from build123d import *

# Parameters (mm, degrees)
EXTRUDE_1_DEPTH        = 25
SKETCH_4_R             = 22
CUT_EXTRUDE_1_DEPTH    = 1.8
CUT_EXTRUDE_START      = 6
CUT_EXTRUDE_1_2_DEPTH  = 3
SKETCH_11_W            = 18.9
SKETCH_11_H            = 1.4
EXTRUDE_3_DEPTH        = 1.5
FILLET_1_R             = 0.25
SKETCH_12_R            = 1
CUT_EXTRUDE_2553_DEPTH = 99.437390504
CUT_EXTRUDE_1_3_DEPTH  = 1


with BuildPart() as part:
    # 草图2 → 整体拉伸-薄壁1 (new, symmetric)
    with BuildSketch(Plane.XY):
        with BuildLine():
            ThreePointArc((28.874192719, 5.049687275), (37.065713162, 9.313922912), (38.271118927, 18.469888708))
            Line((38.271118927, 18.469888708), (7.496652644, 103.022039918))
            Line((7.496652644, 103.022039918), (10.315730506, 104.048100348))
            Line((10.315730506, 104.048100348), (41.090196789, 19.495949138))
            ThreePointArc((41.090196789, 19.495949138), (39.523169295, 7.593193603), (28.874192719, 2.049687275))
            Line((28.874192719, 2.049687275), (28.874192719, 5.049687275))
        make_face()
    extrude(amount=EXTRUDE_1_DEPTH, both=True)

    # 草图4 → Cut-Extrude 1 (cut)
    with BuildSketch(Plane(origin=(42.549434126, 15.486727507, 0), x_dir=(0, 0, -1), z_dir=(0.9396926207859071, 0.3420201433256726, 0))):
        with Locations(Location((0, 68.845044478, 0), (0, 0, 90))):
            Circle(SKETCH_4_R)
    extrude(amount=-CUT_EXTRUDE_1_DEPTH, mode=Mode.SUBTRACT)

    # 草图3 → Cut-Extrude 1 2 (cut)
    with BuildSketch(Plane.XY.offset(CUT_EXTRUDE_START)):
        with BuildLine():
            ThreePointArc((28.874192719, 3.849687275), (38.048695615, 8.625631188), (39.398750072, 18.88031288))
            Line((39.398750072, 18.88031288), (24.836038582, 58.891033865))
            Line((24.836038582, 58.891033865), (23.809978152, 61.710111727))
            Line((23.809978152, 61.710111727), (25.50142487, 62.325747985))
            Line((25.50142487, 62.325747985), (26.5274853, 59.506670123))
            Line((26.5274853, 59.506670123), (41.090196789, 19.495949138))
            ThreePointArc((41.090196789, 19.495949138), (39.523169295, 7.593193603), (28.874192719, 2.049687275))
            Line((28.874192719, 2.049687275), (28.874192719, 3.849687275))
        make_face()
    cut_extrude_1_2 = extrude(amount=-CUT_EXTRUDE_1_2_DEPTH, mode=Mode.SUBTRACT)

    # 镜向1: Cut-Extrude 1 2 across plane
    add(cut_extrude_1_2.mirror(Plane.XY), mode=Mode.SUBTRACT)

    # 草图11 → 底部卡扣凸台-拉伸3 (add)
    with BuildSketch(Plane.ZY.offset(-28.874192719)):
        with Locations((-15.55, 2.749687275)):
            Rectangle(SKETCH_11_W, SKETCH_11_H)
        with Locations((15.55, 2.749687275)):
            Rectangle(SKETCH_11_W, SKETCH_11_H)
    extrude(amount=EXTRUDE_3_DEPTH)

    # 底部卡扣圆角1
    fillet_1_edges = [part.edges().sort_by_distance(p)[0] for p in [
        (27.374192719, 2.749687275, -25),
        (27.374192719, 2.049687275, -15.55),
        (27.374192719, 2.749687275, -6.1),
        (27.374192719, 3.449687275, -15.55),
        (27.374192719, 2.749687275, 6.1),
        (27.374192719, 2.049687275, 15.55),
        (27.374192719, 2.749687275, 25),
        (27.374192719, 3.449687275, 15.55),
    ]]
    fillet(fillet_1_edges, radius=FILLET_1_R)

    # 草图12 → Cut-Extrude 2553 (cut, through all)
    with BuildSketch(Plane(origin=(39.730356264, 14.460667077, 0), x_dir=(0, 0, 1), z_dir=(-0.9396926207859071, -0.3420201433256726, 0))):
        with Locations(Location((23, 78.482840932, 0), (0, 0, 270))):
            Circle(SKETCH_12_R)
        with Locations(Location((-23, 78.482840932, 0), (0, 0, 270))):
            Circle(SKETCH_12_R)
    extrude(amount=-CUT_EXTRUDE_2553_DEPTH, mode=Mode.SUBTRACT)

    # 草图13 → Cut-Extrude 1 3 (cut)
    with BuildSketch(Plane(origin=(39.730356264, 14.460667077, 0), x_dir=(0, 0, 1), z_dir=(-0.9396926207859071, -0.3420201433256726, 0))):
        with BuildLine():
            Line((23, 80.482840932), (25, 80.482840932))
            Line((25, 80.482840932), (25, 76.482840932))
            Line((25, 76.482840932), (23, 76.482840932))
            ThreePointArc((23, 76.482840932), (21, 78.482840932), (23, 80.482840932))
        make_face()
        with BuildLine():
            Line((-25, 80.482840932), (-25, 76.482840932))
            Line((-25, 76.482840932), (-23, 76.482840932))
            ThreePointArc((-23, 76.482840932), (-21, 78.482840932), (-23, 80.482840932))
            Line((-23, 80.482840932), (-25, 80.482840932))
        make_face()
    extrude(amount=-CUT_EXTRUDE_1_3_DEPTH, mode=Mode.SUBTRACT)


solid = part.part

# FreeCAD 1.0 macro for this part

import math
import FreeCAD as App
import Part
import Sketcher
Q = App.Units.Quantity


def edges_at(feature, points):
    """Names of the edges that pass closest to the given points."""
    edges = feature.Shape.Edges
    near = lambda p: min(range(len(edges)), key=lambda i: edges[i].distToShape(Part.Vertex(*p))[0])
    return sorted({f"Edge{near(p) + 1}" for p in points})


def add_polygon(sketch, points):
    """Adds a closed chain of lines whose ends are joined by coincident constraints."""
    first, n = sketch.GeometryCount, len(points)
    for a, b in zip(points, points[1:] + points[:1]):
        sketch.addGeometry(Part.LineSegment(App.Vector(*a, 0), App.Vector(*b, 0)), False)
    for i in range(n):
        sketch.addConstraint(Sketcher.Constraint("Coincident", first + i, 2, first + (i + 1) % n, 1))

doc = App.newDocument("Part")
body = doc.addObject("PartDesign::Body", "Body")

sketch1 = doc.addObject("Sketcher::SketchObject", "Sketch")
body.addObject(sketch1)
sketch1.AttachmentSupport = (doc.XY_Plane, [""])
sketch1.MapMode = "FlatFace"
sketch1.addGeometry(Part.ArcOfCircle(Part.Circle(App.Vector(28.9, 15, 0), App.Vector(0, 0, 1), 10), math.radians(-90), math.radians(20)), False)
sketch1.addGeometry(Part.LineSegment(App.Vector(28.9, 5, 0), App.Vector(28.9, 2, 0)), False)
sketch1.addGeometry(Part.ArcOfCircle(Part.Circle(App.Vector(28.9, 15, 0), App.Vector(0, 0, 1), 13), math.radians(-90), math.radians(20)), False)
sketch1.addGeometry(Part.LineSegment(App.Vector(41.1, 19.5, 0), App.Vector(10.3, 104, 0)), False)
sketch1.addGeometry(Part.LineSegment(App.Vector(10.3, 104, 0), App.Vector(7.5, 103, 0)), False)
sketch1.addGeometry(Part.LineSegment(App.Vector(7.5, 103, 0), App.Vector(38.3, 18.5, 0)), False)
sketch1.addConstraint(Sketcher.Constraint("Coincident", 0, 1, 1, 1))
sketch1.addConstraint(Sketcher.Constraint("Coincident", 1, 2, 2, 1))
sketch1.addConstraint(Sketcher.Constraint("Tangent", 2, 2, 3, 1))
sketch1.addConstraint(Sketcher.Constraint("Coincident", 3, 2, 4, 1))
sketch1.addConstraint(Sketcher.Constraint("Coincident", 4, 2, 5, 1))
sketch1.addConstraint(Sketcher.Constraint("Tangent", 5, 2, 0, 2))
sketch1.addConstraint(Sketcher.Constraint("Vertical", 1))
sketch1.addConstraint(Sketcher.Constraint("Coincident", 2, 3, 0, 3))
sketch1.addConstraint(Sketcher.Constraint("Perpendicular", 3, 4))
sketch1.addConstraint(Sketcher.Constraint("Perpendicular", 4, 5))
sketch1.addConstraint(Sketcher.Constraint("Vertical", 2, 3, 0, 1))
sketch1.addConstraint(Sketcher.Constraint("Radius", 0, 10.0))
sketch1.addConstraint(Sketcher.Constraint("Radius", 2, 13.0))
sketch1.addConstraint(Sketcher.Constraint("Angle", 3, Q("110 deg")))
sketch1.addConstraint(Sketcher.Constraint("DistanceY", -1, 1, 3, 2, 104.0481))
sketch1.addConstraint(Sketcher.Constraint("Distance", 3, 89.97852))
sketch1.addConstraint(Sketcher.Constraint("DistanceX", -1, 1, 3, 2, 10.315731))
pad1 = doc.addObject("PartDesign::Pad", "Pad")
body.addObject(pad1)
pad1.Profile = sketch1
pad1.Length = 50
pad1.Midplane = True

sketch2 = doc.addObject("Sketcher::SketchObject", "Sketch001")
body.addObject(sketch2)
sketch2.Placement = App.Placement(App.Vector(42.549434, 15.486728, 0), App.Rotation(App.Vector(0, 0, -1), App.Vector(-0.342020143, 0.939692621, 0), App.Vector(0.939692621, 0.342020143, 0), "ZXY"))
sketch2.addGeometry(Part.Circle(App.Vector(0, 69, 0), App.Vector(0, 0, 1), 22), False)
sketch2.addConstraint(Sketcher.Constraint("PointOnObject", 0, 3, -2))
sketch2.addConstraint(Sketcher.Constraint("Diameter", 0, 44.0))
sketch2.addConstraint(Sketcher.Constraint("DistanceY", -1, 1, 0, 3, 68.845044))
pocket1 = doc.addObject("PartDesign::Pocket", "Pocket")
body.addObject(pocket1)
pocket1.Profile = sketch2
pocket1.Length = 1.8

sketch3 = doc.addObject("Sketcher::SketchObject", "Sketch002")
body.addObject(sketch3)
sketch3.AttachmentSupport = (doc.XY_Plane, [""])
sketch3.MapMode = "FlatFace"
sketch3.AttachmentOffset = App.Placement(App.Vector(0, 0, 6), App.Rotation())
sketch3.addGeometry(Part.ArcOfCircle(Part.Circle(App.Vector(28.9, 15, 0), App.Vector(0, 0, 1), 11.2), math.radians(-90), math.radians(20)), False)
sketch3.addGeometry(Part.LineSegment(App.Vector(28.9, 3.8, 0), App.Vector(28.9, 2, 0)), False)
sketch3.addGeometry(Part.ArcOfCircle(Part.Circle(App.Vector(28.9, 15, 0), App.Vector(0, 0, 1), 13), math.radians(-90), math.radians(20)), False)
sketch3.addGeometry(Part.LineSegment(App.Vector(41.1, 19.5, 0), App.Vector(26.5, 59.5, 0)), False)
sketch3.addGeometry(Part.LineSegment(App.Vector(26.5, 59.5, 0), App.Vector(25.5, 62.3, 0)), False)
sketch3.addGeometry(Part.LineSegment(App.Vector(25.5, 62.3, 0), App.Vector(23.8, 61.7, 0)), False)
sketch3.addGeometry(Part.LineSegment(App.Vector(23.8, 61.7, 0), App.Vector(24.8, 58.9, 0)), False)
sketch3.addGeometry(Part.LineSegment(App.Vector(24.8, 58.9, 0), App.Vector(39.4, 18.9, 0)), False)
sketch3.addConstraint(Sketcher.Constraint("Coincident", 0, 1, 1, 1))
sketch3.addConstraint(Sketcher.Constraint("Coincident", 1, 2, 2, 1))
sketch3.addConstraint(Sketcher.Constraint("Tangent", 2, 2, 3, 1))
sketch3.addConstraint(Sketcher.Constraint("Coincident", 3, 2, 4, 1))
sketch3.addConstraint(Sketcher.Constraint("Coincident", 4, 2, 5, 1))
sketch3.addConstraint(Sketcher.Constraint("Coincident", 5, 2, 6, 1))
sketch3.addConstraint(Sketcher.Constraint("Coincident", 6, 2, 7, 1))
sketch3.addConstraint(Sketcher.Constraint("Tangent", 7, 2, 0, 2))
sketch3.addConstraint(Sketcher.Constraint("Vertical", 1))
sketch3.addConstraint(Sketcher.Constraint("Coincident", 2, 3, 0, 3))
sketch3.addConstraint(Sketcher.Constraint("Parallel", 3, 4))
sketch3.addConstraint(Sketcher.Constraint("Perpendicular", 4, 5))
sketch3.addConstraint(Sketcher.Constraint("Perpendicular", 5, 6))
sketch3.addConstraint(Sketcher.Constraint("Parallel", 6, 7))
sketch3.addConstraint(Sketcher.Constraint("Vertical", 2, 3, 0, 1))
sketch3.addConstraint(Sketcher.Constraint("Equal", 4, 6))
sketch3.addConstraint(Sketcher.Constraint("Radius", 2, 13.0))
sketch3.addConstraint(Sketcher.Constraint("Radius", 0, 11.2))
sketch3.addConstraint(Sketcher.Constraint("Angle", 3, Q("110 deg")))
sketch3.addConstraint(Sketcher.Constraint("Distance", 4, 3.0))
sketch3.addConstraint(Sketcher.Constraint("DistanceY", 2, 2, 4, 2, 42.829799))
sketch3.addConstraint(Sketcher.Constraint("DistanceY", -1, 1, 2, 2, 19.495949))
sketch3.addConstraint(Sketcher.Constraint("DistanceX", -1, 1, 5, 2, 23.809978))
pocket2 = doc.addObject("PartDesign::Pocket", "Pocket001")
body.addObject(pocket2)
pocket2.Profile = sketch3
pocket2.Length = 3
doc.recompute()

mirrored = doc.addObject("PartDesign::Mirrored", "Mirrored")
body.addObject(mirrored)
mirrored.Originals = [pocket2]
mirrored.MirrorPlane = (doc.XY_Plane, [""])
body.Tip = mirrored

sketch4 = doc.addObject("Sketcher::SketchObject", "Sketch003")
body.addObject(sketch4)
sketch4.AttachmentSupport = (doc.YZ_Plane, [""])
sketch4.MapMode = "FlatFace"
sketch4.AttachmentOffset = App.Placement(App.Vector(0, 0, 28.874193), App.Rotation())
add_polygon(sketch4, [(3.4, -25), (2, -25), (2, -6.1), (3.4, -6.1)])
add_polygon(sketch4, [(3.4, 6.1), (2, 6.1), (2, 25), (3.4, 25)])
sketch4.addConstraint(Sketcher.Constraint("Horizontal", 0))
sketch4.addConstraint(Sketcher.Constraint("Vertical", 1))
sketch4.addConstraint(Sketcher.Constraint("Horizontal", 2))
sketch4.addConstraint(Sketcher.Constraint("Vertical", 3))
sketch4.addConstraint(Sketcher.Constraint("Horizontal", 4))
sketch4.addConstraint(Sketcher.Constraint("Vertical", 5))
sketch4.addConstraint(Sketcher.Constraint("Horizontal", 6))
sketch4.addConstraint(Sketcher.Constraint("Vertical", 7))
sketch4.addConstraint(Sketcher.Constraint("Symmetric", 1, 2, 4, 2, -1))
sketch4.addConstraint(Sketcher.Constraint("Symmetric", 3, 2, 6, 2, -1))
sketch4.addConstraint(Sketcher.Constraint("DistanceX", 0, 2, 0, 1, 1.4))
sketch4.addConstraint(Sketcher.Constraint("DistanceY", 1, 1, 1, 2, 18.9))
sketch4.addConstraint(Sketcher.Constraint("DistanceY", 0, 2, -1, 1, 25.0))
sketch4.addConstraint(Sketcher.Constraint("DistanceX", -1, 1, 0, 2, 2.049687))
pad2 = doc.addObject("PartDesign::Pad", "Pad001")
body.addObject(pad2)
pad2.Profile = sketch4
pad2.Length = 1.5
pad2.Reversed = True
doc.recompute()

fillet = doc.addObject("PartDesign::Fillet", "Fillet")
body.addObject(fillet)
fillet.Base = (pad2, edges_at(pad2, [
    (27.374, 2.75, -25),
    (27.374, 2.05, -15.55),
    (27.374, 2.75, -6.1),
    (27.374, 3.45, -15.55),
    (27.374, 2.75, 6.1),
    (27.374, 2.05, 15.55),
    (27.374, 2.75, 25),
    (27.374, 3.45, 15.55),
]))
fillet.Radius = 0.25

sketch5 = doc.addObject("Sketcher::SketchObject", "Sketch004")
body.addObject(sketch5)
sketch5.Placement = App.Placement(App.Vector(39.730356, 14.460667, 0), App.Rotation(App.Vector(0, 0, 1), App.Vector(-0.342020143, 0.939692621, 0), App.Vector(-0.939692621, -0.342020143, 0), "ZXY"))
sketch5.addGeometry(Part.Circle(App.Vector(23, 78.5, 0), App.Vector(0, 0, 1), 1), False)
sketch5.addGeometry(Part.Circle(App.Vector(-23, 78.5, 0), App.Vector(0, 0, 1), 1), False)
sketch5.addConstraint(Sketcher.Constraint("Equal", 0, 1))
sketch5.addConstraint(Sketcher.Constraint("Symmetric", 0, 3, 1, 3, -2))
sketch5.addConstraint(Sketcher.Constraint("Diameter", 0, 2.0))
sketch5.addConstraint(Sketcher.Constraint("DistanceX", -1, 1, 0, 3, 23.0))
sketch5.addConstraint(Sketcher.Constraint("DistanceY", -1, 1, 0, 3, 78.482841))
pocket3 = doc.addObject("PartDesign::Pocket", "Pocket002")
body.addObject(pocket3)
pocket3.Profile = sketch5
pocket3.Type = "ThroughAll"

sketch6 = doc.addObject("Sketcher::SketchObject", "Sketch005")
body.addObject(sketch6)
sketch6.Placement = App.Placement(App.Vector(39.730356, 14.460667, 0), App.Rotation(App.Vector(0, 0, 1), App.Vector(-0.342020143, 0.939692621, 0), App.Vector(-0.939692621, -0.342020143, 0), "ZXY"))
sketch6.addGeometry(Part.LineSegment(App.Vector(25, 80.5, 0), App.Vector(23, 80.5, 0)), False)
sketch6.addGeometry(Part.ArcOfCircle(Part.Circle(App.Vector(23, 78.5, 0), App.Vector(0, 0, 1), 2), math.radians(90), math.radians(270)), False)
sketch6.addGeometry(Part.LineSegment(App.Vector(23, 76.5, 0), App.Vector(25, 76.5, 0)), False)
sketch6.addGeometry(Part.LineSegment(App.Vector(25, 76.5, 0), App.Vector(25, 80.5, 0)), False)
sketch6.addGeometry(Part.LineSegment(App.Vector(-25, 80.5, 0), App.Vector(-25, 76.5, 0)), False)
sketch6.addGeometry(Part.LineSegment(App.Vector(-25, 76.5, 0), App.Vector(-23, 76.5, 0)), False)
sketch6.addGeometry(Part.ArcOfCircle(Part.Circle(App.Vector(-23, 78.5, 0), App.Vector(0, 0, 1), 2), math.radians(-90), math.radians(90)), False)
sketch6.addGeometry(Part.LineSegment(App.Vector(-23, 80.5, 0), App.Vector(-25, 80.5, 0)), False)
sketch6.addConstraint(Sketcher.Constraint("Tangent", 0, 2, 1, 1))
sketch6.addConstraint(Sketcher.Constraint("Tangent", 1, 2, 2, 1))
sketch6.addConstraint(Sketcher.Constraint("Coincident", 2, 2, 3, 1))
sketch6.addConstraint(Sketcher.Constraint("Coincident", 3, 2, 0, 1))
sketch6.addConstraint(Sketcher.Constraint("Coincident", 4, 2, 5, 1))
sketch6.addConstraint(Sketcher.Constraint("Tangent", 5, 2, 6, 1))
sketch6.addConstraint(Sketcher.Constraint("Tangent", 6, 2, 7, 1))
sketch6.addConstraint(Sketcher.Constraint("Coincident", 7, 2, 4, 1))
sketch6.addConstraint(Sketcher.Constraint("Horizontal", 0))
sketch6.addConstraint(Sketcher.Constraint("Horizontal", 2))
sketch6.addConstraint(Sketcher.Constraint("Vertical", 3))
sketch6.addConstraint(Sketcher.Constraint("Vertical", 4))
sketch6.addConstraint(Sketcher.Constraint("Horizontal", 5))
sketch6.addConstraint(Sketcher.Constraint("Horizontal", 7))
sketch6.addConstraint(Sketcher.Constraint("Equal", 1, 6))
sketch6.addConstraint(Sketcher.Constraint("Symmetric", 1, 3, 6, 3, -2))
sketch6.addConstraint(Sketcher.Constraint("Equal", 2, 5))
sketch6.addConstraint(Sketcher.Constraint("Radius", 1, 2.0))
sketch6.addConstraint(Sketcher.Constraint("DistanceX", 0, 2, 0, 1, 2.0))
sketch6.addConstraint(Sketcher.Constraint("DistanceX", -1, 1, 1, 3, 23.0))
sketch6.addConstraint(Sketcher.Constraint("DistanceY", -1, 1, 1, 3, 78.482841))
pocket4 = doc.addObject("PartDesign::Pocket", "Pocket003")
body.addObject(pocket4)
pocket4.Profile = sketch6
pocket4.Length = 1

doc.recompute()
